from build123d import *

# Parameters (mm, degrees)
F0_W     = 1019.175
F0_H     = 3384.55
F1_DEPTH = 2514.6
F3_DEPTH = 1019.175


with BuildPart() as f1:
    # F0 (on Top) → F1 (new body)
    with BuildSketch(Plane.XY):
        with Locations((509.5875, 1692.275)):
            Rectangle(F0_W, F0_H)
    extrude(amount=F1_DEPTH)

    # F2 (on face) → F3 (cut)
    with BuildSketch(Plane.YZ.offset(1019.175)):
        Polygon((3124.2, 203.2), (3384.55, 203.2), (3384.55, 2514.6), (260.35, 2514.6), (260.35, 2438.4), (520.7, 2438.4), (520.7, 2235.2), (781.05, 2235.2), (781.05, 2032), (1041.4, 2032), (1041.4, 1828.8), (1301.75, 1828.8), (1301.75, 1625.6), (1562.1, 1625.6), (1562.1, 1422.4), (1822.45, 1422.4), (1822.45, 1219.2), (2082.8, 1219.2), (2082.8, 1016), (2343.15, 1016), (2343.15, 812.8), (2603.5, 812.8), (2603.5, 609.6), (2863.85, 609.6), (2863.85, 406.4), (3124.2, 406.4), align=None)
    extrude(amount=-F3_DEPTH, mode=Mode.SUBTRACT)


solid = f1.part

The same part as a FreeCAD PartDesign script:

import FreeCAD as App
import Part
import Sketcher
from FreeCAD import Vector
Q = App.Units.Quantity


def add_polygon(sketch, points):
    """Adds a closed chain of lines whose ends are joined by coincident constraints."""
    first, n = sketch.GeometryCount, len(points)
    for a, b in zip(points, points[1:] + points[:1]):
        sketch.addGeometry(Part.LineSegment(App.Vector(*a, 0), App.Vector(*b, 0)), False)
    for i in range(n):
        sketch.addConstraint(Sketcher.Constraint("Coincident", first + i, 2, first + (i + 1) % n, 1))

doc = App.newDocument("Part")
body = doc.addObject("PartDesign::Body", "Body")

# Sketch on XY plane
sketch1 = body.newObject("Sketcher::SketchObject", "Sketch")
sketch1.AttachmentSupport = (doc.getObject("XY_Plane"), [""])
sketch1.MapMode = "FlatFace"
add_polygon(sketch1, [(0, 3385), (0, 0), (1019, 0), (1019, 3385)])  # lines 0-3
sketch1.addConstraint(Sketcher.Constraint("Vertical", 0))
sketch1.addConstraint(Sketcher.Constraint("Horizontal", 1))
sketch1.addConstraint(Sketcher.Constraint("Vertical", 2))
sketch1.addConstraint(Sketcher.Constraint("Horizontal", 3))
sketch1.addConstraint(Sketcher.Constraint("Coincident", 0, 2, -1, 1))
sketch1.addConstraint(Sketcher.Constraint("DistanceY", 0, 2, 0, 1, Q("133.25 in")))
sketch1.addConstraint(Sketcher.Constraint("DistanceX", 1, 1, 1, 2, Q("40.125 in")))
pad1 = body.newObject("PartDesign::Pad", "Pad")
pad1.Profile = sketch1
pad1.Length = Q("99 in")

# Sketch on YZ plane
sketch2 = body.newObject("Sketcher::SketchObject", "Sketch001")
sketch2.AttachmentSupport = (doc.getObject("YZ_Plane"), [""])
sketch2.MapMode = "FlatFace"
sketch2.AttachmentOffset = App.Placement(Vector(0, 0, 40.125 * 25.4), App.Rotation())
add_polygon(sketch2, [(3124, 203), (3385, 203), (3385, 2515), (260, 2515), (260, 2438), (521, 2438), (521, 2235), (781, 2235), (781, 2032), (1041, 2032), (1041, 1829), (1302, 1829), (1302, 1626), (1562, 1626), (1562, 1422), (1822, 1422), (1822, 1219), (2083, 1219), (2083, 1016), (2343, 1016), (2343, 813), (2604, 813), (2604, 610), (2864, 610), (2864, 406), (3124, 406)])  # lines 0-25
sketch2.addConstraint(Sketcher.Constraint("Horizontal", 0))
sketch2.addConstraint(Sketcher.Constraint("Vertical", 1))
sketch2.addConstraint(Sketcher.Constraint("Horizontal", 2))
sketch2.addConstraint(Sketcher.Constraint("Vertical", 3))
sketch2.addConstraint(Sketcher.Constraint("Horizontal", 4))
sketch2.addConstraint(Sketcher.Constraint("Vertical", 5))
sketch2.addConstraint(Sketcher.Constraint("Horizontal", 6))
sketch2.addConstraint(Sketcher.Constraint("Vertical", 7))
sketch2.addConstraint(Sketcher.Constraint("Horizontal", 8))
sketch2.addConstraint(Sketcher.Constraint("Vertical", 9))
sketch2.addConstraint(Sketcher.Constraint("Horizontal", 10))
sketch2.addConstraint(Sketcher.Constraint("Vertical", 11))
sketch2.addConstraint(Sketcher.Constraint("Horizontal", 12))
sketch2.addConstraint(Sketcher.Constraint("Vertical", 13))
sketch2.addConstraint(Sketcher.Constraint("Horizontal", 14))
sketch2.addConstraint(Sketcher.Constraint("Vertical", 15))
sketch2.addConstraint(Sketcher.Constraint("Horizontal", 16))
sketch2.addConstraint(Sketcher.Constraint("Vertical", 17))
sketch2.addConstraint(Sketcher.Constraint("Horizontal", 18))
sketch2.addConstraint(Sketcher.Constraint("Vertical", 19))
sketch2.addConstraint(Sketcher.Constraint("Horizontal", 20))
sketch2.addConstraint(Sketcher.Constraint("Vertical", 21))
sketch2.addConstraint(Sketcher.Constraint("Horizontal", 22))
sketch2.addConstraint(Sketcher.Constraint("Vertical", 23))
sketch2.addConstraint(Sketcher.Constraint("Horizontal", 24))
sketch2.addConstraint(Sketcher.Constraint("Vertical", 25))
sketch2.addConstraint(Sketcher.Constraint("Equal", 0, 4))
sketch2.addConstraint(Sketcher.Constraint("Equal", 4, 6))
sketch2.addConstraint(Sketcher.Constraint("Equal", 6, 8))
sketch2.addConstraint(Sketcher.Constraint("Equal", 8, 10))
sketch2.addConstraint(Sketcher.Constraint("Equal", 10, 12))
sketch2.addConstraint(Sketcher.Constraint("Equal", 12, 14))
sketch2.addConstraint(Sketcher.Constraint("Equal", 14, 16))
sketch2.addConstraint(Sketcher.Constraint("Equal", 16, 18))
sketch2.addConstraint(Sketcher.Constraint("Equal", 18, 20))
sketch2.addConstraint(Sketcher.Constraint("Equal", 20, 22))
sketch2.addConstraint(Sketcher.Constraint("Equal", 22, 24))
sketch2.addConstraint(Sketcher.Constraint("Equal", 5, 7))
sketch2.addConstraint(Sketcher.Constraint("Equal", 7, 9))
sketch2.addConstraint(Sketcher.Constraint("Equal", 9, 11))
sketch2.addConstraint(Sketcher.Constraint("Equal", 11, 13))
sketch2.addConstraint(Sketcher.Constraint("Equal", 13, 15))
sketch2.addConstraint(Sketcher.Constraint("Equal", 15, 17))
sketch2.addConstraint(Sketcher.Constraint("Equal", 17, 19))
sketch2.addConstraint(Sketcher.Constraint("Equal", 19, 21))
sketch2.addConstraint(Sketcher.Constraint("Equal", 21, 23))
sketch2.addConstraint(Sketcher.Constraint("Equal", 23, 25))
sketch2.addConstraint(Sketcher.Constraint("DistanceX", 2, 2, 2, 1, Q("123 in")))
sketch2.addConstraint(Sketcher.Constraint("DistanceY", 1, 1, 1, 2, Q("91 in")))
sketch2.addConstraint(Sketcher.Constraint("DistanceY", 3, 2, 3, 1, Q("3 in")))
sketch2.addConstraint(Sketcher.Constraint("DistanceY", -1, 1, 0, 2, Q("8 in")))
sketch2.addConstraint(Sketcher.Constraint("DistanceX", -1, 1, 8, 2, Q("41 in")))
pocket1 = body.newObject("PartDesign::Pocket", "Pocket")
pocket1.Profile = sketch2
pocket1.Length = Q("40.125 in")

doc.recompute()
